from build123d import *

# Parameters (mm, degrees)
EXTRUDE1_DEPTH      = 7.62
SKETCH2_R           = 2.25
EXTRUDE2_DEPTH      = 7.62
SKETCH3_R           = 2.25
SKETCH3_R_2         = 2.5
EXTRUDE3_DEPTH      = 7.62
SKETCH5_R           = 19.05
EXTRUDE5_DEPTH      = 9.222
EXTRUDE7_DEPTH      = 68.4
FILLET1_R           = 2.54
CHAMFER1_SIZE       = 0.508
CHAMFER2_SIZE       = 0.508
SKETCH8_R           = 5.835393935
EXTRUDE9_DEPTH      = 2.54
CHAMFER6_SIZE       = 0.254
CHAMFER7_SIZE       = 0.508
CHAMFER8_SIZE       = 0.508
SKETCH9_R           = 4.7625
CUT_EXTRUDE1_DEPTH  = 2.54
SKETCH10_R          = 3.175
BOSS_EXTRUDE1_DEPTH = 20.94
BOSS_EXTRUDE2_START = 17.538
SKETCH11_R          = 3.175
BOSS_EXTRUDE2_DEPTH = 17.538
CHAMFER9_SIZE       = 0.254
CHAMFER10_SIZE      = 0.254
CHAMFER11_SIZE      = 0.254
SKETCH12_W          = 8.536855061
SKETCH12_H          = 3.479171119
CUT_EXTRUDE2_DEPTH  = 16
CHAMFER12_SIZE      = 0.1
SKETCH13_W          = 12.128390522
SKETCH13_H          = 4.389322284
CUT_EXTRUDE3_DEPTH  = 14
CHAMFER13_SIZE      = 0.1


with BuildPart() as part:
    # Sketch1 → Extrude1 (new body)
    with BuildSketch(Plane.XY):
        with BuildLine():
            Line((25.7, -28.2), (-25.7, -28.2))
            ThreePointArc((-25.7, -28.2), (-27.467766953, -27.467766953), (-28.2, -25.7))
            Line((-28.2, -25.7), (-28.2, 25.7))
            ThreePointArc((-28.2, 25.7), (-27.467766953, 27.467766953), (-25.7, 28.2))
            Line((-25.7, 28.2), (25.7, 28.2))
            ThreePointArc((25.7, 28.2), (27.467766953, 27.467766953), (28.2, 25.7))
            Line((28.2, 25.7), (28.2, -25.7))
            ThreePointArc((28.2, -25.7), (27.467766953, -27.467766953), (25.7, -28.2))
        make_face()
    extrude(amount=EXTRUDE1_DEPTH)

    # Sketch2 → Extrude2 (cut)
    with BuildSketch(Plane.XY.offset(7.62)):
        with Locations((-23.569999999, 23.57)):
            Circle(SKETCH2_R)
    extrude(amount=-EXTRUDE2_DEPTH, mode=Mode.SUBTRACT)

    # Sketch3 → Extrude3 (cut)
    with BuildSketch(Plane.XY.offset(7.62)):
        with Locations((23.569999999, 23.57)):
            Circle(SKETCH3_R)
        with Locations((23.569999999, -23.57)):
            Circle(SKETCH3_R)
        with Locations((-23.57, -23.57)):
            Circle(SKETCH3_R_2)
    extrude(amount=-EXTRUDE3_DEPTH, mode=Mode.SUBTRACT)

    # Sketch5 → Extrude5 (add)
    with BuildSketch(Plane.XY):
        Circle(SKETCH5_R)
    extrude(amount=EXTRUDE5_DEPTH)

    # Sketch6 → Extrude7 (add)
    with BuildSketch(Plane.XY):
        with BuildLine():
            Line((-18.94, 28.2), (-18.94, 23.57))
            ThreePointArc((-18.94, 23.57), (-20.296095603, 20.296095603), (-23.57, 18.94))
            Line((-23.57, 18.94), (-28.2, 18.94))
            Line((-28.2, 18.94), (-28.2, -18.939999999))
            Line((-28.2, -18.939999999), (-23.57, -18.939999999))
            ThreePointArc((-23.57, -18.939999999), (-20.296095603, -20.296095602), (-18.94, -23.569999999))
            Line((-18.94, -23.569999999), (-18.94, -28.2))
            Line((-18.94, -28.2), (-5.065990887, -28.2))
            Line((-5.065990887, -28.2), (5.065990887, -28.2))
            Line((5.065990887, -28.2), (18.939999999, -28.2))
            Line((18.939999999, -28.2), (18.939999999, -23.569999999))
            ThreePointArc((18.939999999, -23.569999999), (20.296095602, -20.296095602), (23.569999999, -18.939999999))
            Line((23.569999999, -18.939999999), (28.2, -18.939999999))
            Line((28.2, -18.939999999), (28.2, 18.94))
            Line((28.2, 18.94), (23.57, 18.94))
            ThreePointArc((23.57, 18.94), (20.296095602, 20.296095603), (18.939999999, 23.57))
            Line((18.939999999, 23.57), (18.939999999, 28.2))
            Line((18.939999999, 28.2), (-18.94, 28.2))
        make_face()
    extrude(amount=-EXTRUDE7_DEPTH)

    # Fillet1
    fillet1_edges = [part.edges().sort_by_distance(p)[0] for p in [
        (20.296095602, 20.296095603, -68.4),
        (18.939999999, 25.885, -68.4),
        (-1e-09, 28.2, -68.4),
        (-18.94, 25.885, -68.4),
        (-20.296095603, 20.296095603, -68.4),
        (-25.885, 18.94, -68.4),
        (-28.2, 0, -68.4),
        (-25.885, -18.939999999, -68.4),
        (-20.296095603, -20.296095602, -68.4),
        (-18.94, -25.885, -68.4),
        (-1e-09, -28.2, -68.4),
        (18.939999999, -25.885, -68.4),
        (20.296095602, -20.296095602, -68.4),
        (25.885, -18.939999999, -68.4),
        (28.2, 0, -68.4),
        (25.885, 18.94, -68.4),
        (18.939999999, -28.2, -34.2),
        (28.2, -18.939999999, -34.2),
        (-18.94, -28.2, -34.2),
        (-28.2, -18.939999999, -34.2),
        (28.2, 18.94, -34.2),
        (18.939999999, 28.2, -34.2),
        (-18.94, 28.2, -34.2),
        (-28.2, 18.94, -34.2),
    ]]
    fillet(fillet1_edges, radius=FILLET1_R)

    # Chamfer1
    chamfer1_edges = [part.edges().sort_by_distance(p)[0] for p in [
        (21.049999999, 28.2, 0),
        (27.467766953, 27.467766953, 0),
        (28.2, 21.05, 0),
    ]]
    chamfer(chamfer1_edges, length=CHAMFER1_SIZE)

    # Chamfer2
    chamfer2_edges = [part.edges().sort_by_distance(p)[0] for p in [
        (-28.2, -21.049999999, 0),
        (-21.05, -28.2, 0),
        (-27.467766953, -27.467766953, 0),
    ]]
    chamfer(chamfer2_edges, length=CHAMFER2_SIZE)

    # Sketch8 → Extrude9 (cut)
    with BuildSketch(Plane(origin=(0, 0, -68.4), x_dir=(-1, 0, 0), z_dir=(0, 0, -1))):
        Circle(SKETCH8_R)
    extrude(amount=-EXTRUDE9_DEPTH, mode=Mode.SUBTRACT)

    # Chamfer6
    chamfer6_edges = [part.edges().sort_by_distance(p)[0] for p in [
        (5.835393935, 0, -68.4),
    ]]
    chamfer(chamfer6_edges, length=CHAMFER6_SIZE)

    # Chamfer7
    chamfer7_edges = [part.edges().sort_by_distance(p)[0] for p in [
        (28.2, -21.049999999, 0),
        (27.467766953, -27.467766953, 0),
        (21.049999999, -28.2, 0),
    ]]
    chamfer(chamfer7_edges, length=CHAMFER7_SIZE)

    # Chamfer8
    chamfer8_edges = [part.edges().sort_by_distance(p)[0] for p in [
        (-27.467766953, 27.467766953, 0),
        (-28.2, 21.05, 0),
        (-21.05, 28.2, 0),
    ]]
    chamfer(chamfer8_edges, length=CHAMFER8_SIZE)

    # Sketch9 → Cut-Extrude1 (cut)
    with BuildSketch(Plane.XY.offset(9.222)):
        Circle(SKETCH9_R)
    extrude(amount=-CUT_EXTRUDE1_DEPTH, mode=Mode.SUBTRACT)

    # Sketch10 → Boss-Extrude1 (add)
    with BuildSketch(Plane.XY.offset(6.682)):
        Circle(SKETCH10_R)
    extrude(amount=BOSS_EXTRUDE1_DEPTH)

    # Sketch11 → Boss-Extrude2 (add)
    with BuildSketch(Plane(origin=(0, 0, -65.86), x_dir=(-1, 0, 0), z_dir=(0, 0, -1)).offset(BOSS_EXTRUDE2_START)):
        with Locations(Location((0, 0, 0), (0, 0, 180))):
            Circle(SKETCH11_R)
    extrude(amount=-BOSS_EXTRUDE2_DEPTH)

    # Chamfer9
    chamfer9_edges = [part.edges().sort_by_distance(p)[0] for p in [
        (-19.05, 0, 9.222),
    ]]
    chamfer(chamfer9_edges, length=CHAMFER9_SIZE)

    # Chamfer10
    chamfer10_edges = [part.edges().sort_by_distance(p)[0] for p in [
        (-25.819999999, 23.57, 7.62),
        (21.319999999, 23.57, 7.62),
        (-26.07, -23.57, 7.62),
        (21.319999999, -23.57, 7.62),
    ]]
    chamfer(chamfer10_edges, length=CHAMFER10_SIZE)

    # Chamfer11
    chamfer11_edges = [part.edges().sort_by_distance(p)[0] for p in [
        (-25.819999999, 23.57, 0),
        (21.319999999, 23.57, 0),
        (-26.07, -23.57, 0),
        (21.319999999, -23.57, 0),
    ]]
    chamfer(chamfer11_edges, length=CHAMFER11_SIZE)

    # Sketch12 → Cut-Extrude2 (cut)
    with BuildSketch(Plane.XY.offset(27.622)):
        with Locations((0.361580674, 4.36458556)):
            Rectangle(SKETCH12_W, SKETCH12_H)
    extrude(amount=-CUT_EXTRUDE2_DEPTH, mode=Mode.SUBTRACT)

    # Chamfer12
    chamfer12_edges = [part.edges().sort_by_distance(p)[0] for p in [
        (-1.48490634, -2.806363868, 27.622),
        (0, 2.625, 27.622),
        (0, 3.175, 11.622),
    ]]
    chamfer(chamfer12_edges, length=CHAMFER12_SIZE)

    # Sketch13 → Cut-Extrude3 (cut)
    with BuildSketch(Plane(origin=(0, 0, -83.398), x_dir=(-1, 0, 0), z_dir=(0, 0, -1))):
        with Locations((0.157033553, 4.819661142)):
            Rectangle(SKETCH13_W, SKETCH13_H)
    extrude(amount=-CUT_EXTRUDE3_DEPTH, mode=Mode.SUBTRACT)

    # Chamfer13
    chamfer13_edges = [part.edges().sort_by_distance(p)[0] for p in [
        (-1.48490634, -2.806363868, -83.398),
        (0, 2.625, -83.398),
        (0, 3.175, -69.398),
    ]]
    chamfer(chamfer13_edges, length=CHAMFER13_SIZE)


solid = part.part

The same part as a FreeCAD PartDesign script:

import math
import FreeCAD as App
import Part
import Sketcher

V = App.Vector
Q = App.Units.Quantity


def edges_at(feature, points):
    """Names of the edges that pass closest to the given points."""
    edges = feature.Shape.Edges
    near = lambda p: min(range(len(edges)), key=lambda i: edges[i].distToShape(Part.Vertex(*p))[0])
    return sorted({f"Edge{near(p) + 1}" for p in points})


def add_polygon(sketch, points):
    """Adds a closed chain of lines whose ends are joined by coincident constraints."""
    first, n = sketch.GeometryCount, len(points)
    for a, b in zip(points, points[1:] + points[:1]):
        sketch.addGeometry(Part.LineSegment(App.Vector(*a, 0), App.Vector(*b, 0)), False)
    for i in range(n):
        sketch.addConstraint(Sketcher.Constraint("Coincident", first + i, 2, first + (i + 1) % n, 1))

doc = App.newDocument("Part")
params = doc.addObject("Spreadsheet::Sheet", "Params")
for row, (alias, value) in enumerate([
    ("sketch1_radius", "2.5 mm"),
    ("sketch1_width", "51.4 mm"),
    ("pad1_length", "7.62 mm"),
    ("sketch2_diameter", "4.5 mm"),
    ("pocket1_length", "7.62 mm"),
    ("sketch3_diameter", "5 mm"),
    ("sketch3_diameter2", "4.5 mm"),
    ("pocket2_length", "7.62 mm"),
    ("sketch4_diameter", "38.1 mm"),
    ("pad2_length", "9.222 mm"),
    ("sketch5_radius", "4.63 mm"),
    ("sketch5_width", "4.63 mm"),
    ("sketch5_width2", "37.88 mm"),
    ("pad3_length", "68.4 mm"),
    ("fillet_radius", "2.54 mm"),
    ("chamfer_size", "0.508 mm"),
    ("chamfer2_size", "0.508 mm"),
    ("pocket3_length", "2.54 mm"),
    ("chamfer3_size", "0.254 mm"),
    ("chamfer4_size", "0.508 mm"),
    ("chamfer5_size", "0.508 mm"),
    ("pocket4_length", "2.54 mm"),
    ("sketch8_diameter", "6.35 mm"),
    ("pad4_length", "20.94 mm"),
    ("sketch9_diameter", "6.35 mm"),
    ("pad5_length", "17.538 mm"),
    ("chamfer6_size", "0.254 mm"),
    ("chamfer7_size", "0.254 mm"),
    ("chamfer8_size", "0.254 mm"),
    ("pocket5_length", "16 mm"),
    ("chamfer9_size", "0.1 mm"),
    ("pocket6_length", "14 mm"),
    ("chamfer10_size", "0.1 mm"),
], start=1):
    params.set(f"A{row}", alias)
    params.set(f"B{row}", "=" + value)
    params.setAlias(f"B{row}", alias)

body = doc.addObject("PartDesign::Body", "Body")

# Sketch on XY plane
sketch1 = body.newObject("Sketcher::SketchObject", "Sketch")
sketch1.AttachmentSupport = (doc.getObject("XY_Plane"), [""])
sketch1.MapMode = "FlatFace"
sketch1.addGeometry(Part.LineSegment(V(-25.7, -28.2, 0), V(25.7, -28.2, 0)), False)
sketch1.addGeometry(Part.ArcOfCircle(Part.Circle(V(25.7, -25.7, 0), V(0, 0, 1), 2.5), math.radians(-90), math.radians(0)), False)
sketch1.addGeometry(Part.LineSegment(V(28.2, -25.7, 0), V(28.2, 25.7, 0)), False)
sketch1.addGeometry(Part.ArcOfCircle(Part.Circle(V(25.7, 25.7, 0), V(0, 0, 1), 2.5), math.radians(0), math.radians(90)), False)
sketch1.addGeometry(Part.LineSegment(V(25.7, 28.2, 0), V(-25.7, 28.2, 0)), False)
sketch1.addGeometry(Part.ArcOfCircle(Part.Circle(V(-25.7, 25.7, 0), V(0, 0, 1), 2.5), math.radians(90), math.radians(180)), False)
sketch1.addGeometry(Part.LineSegment(V(-28.2, 25.7, 0), V(-28.2, -25.7, 0)), False)
sketch1.addGeometry(Part.ArcOfCircle(Part.Circle(V(-25.7, -25.7, 0), V(0, 0, 1), 2.5), math.radians(180), math.radians(270)), False)
sketch1.addConstraint(Sketcher.Constraint("Tangent", 0, 2, 1, 1))
sketch1.addConstraint(Sketcher.Constraint("Tangent", 1, 2, 2, 1))
sketch1.addConstraint(Sketcher.Constraint("Tangent", 2, 2, 3, 1))
sketch1.addConstraint(Sketcher.Constraint("Tangent", 3, 2, 4, 1))
sketch1.addConstraint(Sketcher.Constraint("Tangent", 4, 2, 5, 1))
sketch1.addConstraint(Sketcher.Constraint("Tangent", 5, 2, 6, 1))
sketch1.addConstraint(Sketcher.Constraint("Tangent", 6, 2, 7, 1))
sketch1.addConstraint(Sketcher.Constraint("Tangent", 7, 2, 0, 1))
sketch1.addConstraint(Sketcher.Constraint("Horizontal", 0))
sketch1.addConstraint(Sketcher.Constraint("Vertical", 2))
sketch1.addConstraint(Sketcher.Constraint("Horizontal", 4))
sketch1.addConstraint(Sketcher.Constraint("Vertical", 6))
sketch1.addConstraint(Sketcher.Constraint("Equal", 1, 3))
sketch1.addConstraint(Sketcher.Constraint("Equal", 3, 5))
sketch1.addConstraint(Sketcher.Constraint("Equal", 5, 7))
sketch1.addConstraint(Sketcher.Constraint("Symmetric", 1, 3, 5, 3, -1, 1))
sketch1.addConstraint(Sketcher.Constraint("Equal", 4, 2))
sketch1.addConstraint(Sketcher.Constraint("Radius", 1, Q("2.5 mm")))
sketch1.addConstraint(Sketcher.Constraint("DistanceX", 0, 1, 0, 2, Q("51.4 mm")))
sketch1.setExpression("Constraints[17]", "Params.sketch1_radius")
sketch1.setExpression("Constraints[18]", "Params.sketch1_width")
pad1 = body.newObject("PartDesign::Pad", "Pad")
pad1.Profile = sketch1
pad1.setExpression("Length", "Params.pad1_length")

# Sketch on XY plane
sketch2 = body.newObject("Sketcher::SketchObject", "Sketch001")
sketch2.AttachmentSupport = (doc.getObject("XY_Plane"), [""])
sketch2.MapMode = "FlatFace"
sketch2.AttachmentOffset = App.Placement(V(0, 0, 7.62), App.Rotation())
sketch2.addGeometry(Part.Circle(V(-23.6, 23.6, 0), V(0, 0, 1), 2.2), False)
sketch2.addConstraint(Sketcher.Constraint("Diameter", 0, Q("4.5 mm")))
sketch2.addConstraint(Sketcher.Constraint("DistanceX", 0, 3, -1, 1, Q("23.57 mm")))
sketch2.addConstraint(Sketcher.Constraint("DistanceY", -1, 1, 0, 3, Q("23.57 mm")))
sketch2.setExpression("Constraints[0]", "Params.sketch2_diameter")
pocket1 = body.newObject("PartDesign::Pocket", "Pocket")
pocket1.Profile = sketch2
pocket1.setExpression("Length", "Params.pocket1_length")

# Sketch on XY plane
sketch3 = body.newObject("Sketcher::SketchObject", "Sketch002")
sketch3.AttachmentSupport = (doc.getObject("XY_Plane"), [""])
sketch3.MapMode = "FlatFace"
sketch3.AttachmentOffset = App.Placement(V(0, 0, 7.62), App.Rotation())
sketch3.addGeometry(Part.Circle(V(23.6, 23.6, 0), V(0, 0, 1), 2.2), False)
sketch3.addGeometry(Part.Circle(V(23.6, -23.6, 0), V(0, 0, 1), 2.2), False)
sketch3.addGeometry(Part.Circle(V(-23.6, -23.6, 0), V(0, 0, 1), 2.5), False)
sketch3.addConstraint(Sketcher.Constraint("Equal", 0, 1))
sketch3.addConstraint(Sketcher.Constraint("Symmetric", 0, 3, 2, 3, -1, 1))
sketch3.addConstraint(Sketcher.Constraint("Symmetric", 1, 3, 2, 3, -2))
sketch3.addConstraint(Sketcher.Constraint("Diameter", 2, Q("5 mm")))
sketch3.addConstraint(Sketcher.Constraint("Diameter", 0, Q("4.5 mm")))
sketch3.addConstraint(Sketcher.Constraint("DistanceX", -1, 1, 0, 3, Q("23.57 mm")))
sketch3.addConstraint(Sketcher.Constraint("DistanceY", -1, 1, 0, 3, Q("23.57 mm")))
sketch3.setExpression("Constraints[3]", "Params.sketch3_diameter")
sketch3.setExpression("Constraints[4]", "Params.sketch3_diameter2")
pocket2 = body.newObject("PartDesign::Pocket", "Pocket001")
pocket2.Profile = sketch3
pocket2.setExpression("Length", "Params.pocket2_length")

# Sketch on XY plane
sketch4 = body.newObject("Sketcher::SketchObject", "Sketch003")
sketch4.AttachmentSupport = (doc.getObject("XY_Plane"), [""])
sketch4.MapMode = "FlatFace"
sketch4.addGeometry(Part.Circle(V(0, 0, 0), V(0, 0, 1), 19), False)
sketch4.addConstraint(Sketcher.Constraint("Coincident", 0, 3, -1, 1))
sketch4.addConstraint(Sketcher.Constraint("Diameter", 0, Q("38.1 mm")))
sketch4.setExpression("Constraints[1]", "Params.sketch4_diameter")
pad2 = body.newObject("PartDesign::Pad", "Pad001")
pad2.Profile = sketch4
pad2.setExpression("Length", "Params.pad2_length")

# Sketch on XY plane
sketch5 = body.newObject("Sketcher::SketchObject", "Sketch004")
sketch5.AttachmentSupport = (doc.getObject("XY_Plane"), [""])
sketch5.MapMode = "FlatFace"
sketch5.addGeometry(Part.LineSegment(V(-18.9, 28.2, 0), V(-18.9, 23.6, 0)), False)
sketch5.addGeometry(Part.ArcOfCircle(Part.Circle(V(-23.6, 23.6, 0), V(0, 0, 1), 4.6), math.radians(-90), math.radians(0)), False)
sketch5.addGeometry(Part.LineSegment(V(-23.6, 18.9, 0), V(-28.2, 18.9, 0)), False)
sketch5.addGeometry(Part.LineSegment(V(-28.2, 18.9, 0), V(-28.2, -18.9, 0)), False)
sketch5.addGeometry(Part.LineSegment(V(-28.2, -18.9, 0), V(-23.6, -18.9, 0)), False)
sketch5.addGeometry(Part.ArcOfCircle(Part.Circle(V(-23.6, -23.6, 0), V(0, 0, 1), 4.6), math.radians(0), math.radians(90)), False)
sketch5.addGeometry(Part.LineSegment(V(-18.9, -23.6, 0), V(-18.9, -28.2, 0)), False)
sketch5.addGeometry(Part.LineSegment(V(-18.9, -28.2, 0), V(18.9, -28.2, 0)), False)
sketch5.addGeometry(Part.LineSegment(V(18.9, -28.2, 0), V(18.9, -23.6, 0)), False)
sketch5.addGeometry(Part.ArcOfCircle(Part.Circle(V(23.6, -23.6, 0), V(0, 0, 1), 4.6), math.radians(90), math.radians(180)), False)
sketch5.addGeometry(Part.LineSegment(V(23.6, -18.9, 0), V(28.2, -18.9, 0)), False)
sketch5.addGeometry(Part.LineSegment(V(28.2, -18.9, 0), V(28.2, 18.9, 0)), False)
sketch5.addGeometry(Part.LineSegment(V(28.2, 18.9, 0), V(23.6, 18.9, 0)), False)
sketch5.addGeometry(Part.ArcOfCircle(Part.Circle(V(23.6, 23.6, 0), V(0, 0, 1), 4.6), math.radians(180), math.radians(270)), False)
sketch5.addGeometry(Part.LineSegment(V(18.9, 23.6, 0), V(18.9, 28.2, 0)), False)
sketch5.addGeometry(Part.LineSegment(V(18.9, 28.2, 0), V(-18.9, 28.2, 0)), False)
sketch5.addConstraint(Sketcher.Constraint("Tangent", 0, 2, 1, 2))
sketch5.addConstraint(Sketcher.Constraint("Tangent", 1, 1, 2, 1))
sketch5.addConstraint(Sketcher.Constraint("Coincident", 2, 2, 3, 1))
sketch5.addConstraint(Sketcher.Constraint("Coincident", 3, 2, 4, 1))
sketch5.addConstraint(Sketcher.Constraint("Tangent", 4, 2, 5, 2))
sketch5.addConstraint(Sketcher.Constraint("Tangent", 5, 1, 6, 1))
sketch5.addConstraint(Sketcher.Constraint("Coincident", 6, 2, 7, 1))
sketch5.addConstraint(Sketcher.Constraint("Coincident", 7, 2, 8, 1))
sketch5.addConstraint(Sketcher.Constraint("Tangent", 8, 2, 9, 2))
sketch5.addConstraint(Sketcher.Constraint("Tangent", 9, 1, 10, 1))
sketch5.addConstraint(Sketcher.Constraint("Coincident", 10, 2, 11, 1))
sketch5.addConstraint(Sketcher.Constraint("Coincident", 11, 2, 12, 1))
sketch5.addConstraint(Sketcher.Constraint("Tangent", 12, 2, 13, 2))
sketch5.addConstraint(Sketcher.Constraint("Tangent", 13, 1, 14, 1))
sketch5.addConstraint(Sketcher.Constraint("Coincident", 14, 2, 15, 1))
sketch5.addConstraint(Sketcher.Constraint("Coincident", 15, 2, 0, 1))
sketch5.addConstraint(Sketcher.Constraint("Vertical", 0))
sketch5.addConstraint(Sketcher.Constraint("Horizontal", 2))
sketch5.addConstraint(Sketcher.Constraint("Vertical", 3))
sketch5.addConstraint(Sketcher.Constraint("Horizontal", 4))
sketch5.addConstraint(Sketcher.Constraint("Vertical", 6))
sketch5.addConstraint(Sketcher.Constraint("Horizontal", 7))
sketch5.addConstraint(Sketcher.Constraint("Vertical", 8))
sketch5.addConstraint(Sketcher.Constraint("Horizontal", 10))
sketch5.addConstraint(Sketcher.Constraint("Vertical", 11))
sketch5.addConstraint(Sketcher.Constraint("Horizontal", 12))
sketch5.addConstraint(Sketcher.Constraint("Vertical", 14))
sketch5.addConstraint(Sketcher.Constraint("Horizontal", 15))
sketch5.addConstraint(Sketcher.Constraint("Equal", 1, 5))
sketch5.addConstraint(Sketcher.Constraint("Equal", 5, 9))
sketch5.addConstraint(Sketcher.Constraint("Equal", 9, 13))
sketch5.addConstraint(Sketcher.Constraint("Symmetric", 1, 3, 9, 3, -1, 1))
sketch5.addConstraint(Sketcher.Constraint("Symmetric", 5, 3, 13, 3, -1, 1))
sketch5.addConstraint(Sketcher.Constraint("Symmetric", 5, 3, 9, 3, -2))
sketch5.addConstraint(Sketcher.Constraint("Equal", 4, 10))
sketch5.addConstraint(Sketcher.Constraint("Equal", 12, 0))
sketch5.addConstraint(Sketcher.Constraint("Equal", 15, 3))
sketch5.addConstraint(Sketcher.Constraint("Equal", 0, 6))
sketch5.addConstraint(Sketcher.Constraint("Radius", 1, Q("4.63 mm")))
sketch5.addConstraint(Sketcher.Constraint("DistanceX", 2, 2, 2, 1, Q("4.63 mm")))
sketch5.addConstraint(Sketcher.Constraint("DistanceX", 7, 1, 7, 2, Q("37.88 mm")))
sketch5.setExpression("Constraints[38]", "Params.sketch5_radius")
sketch5.setExpression("Constraints[39]", "Params.sketch5_width")
sketch5.setExpression("Constraints[40]", "Params.sketch5_width2")
pad3 = body.newObject("PartDesign::Pad", "Pad002")
pad3.Profile = sketch5
pad3.setExpression("Length", "Params.pad3_length")
pad3.Reversed = True
doc.recompute()

fillet = body.newObject("PartDesign::Fillet", "Fillet")
fillet.Base = (pad3, edges_at(pad3, [
    (20.296, 20.296, -68.4),
    (18.94, 25.885, -68.4),
    (0, 28.2, -68.4),
    (-18.94, 25.885, -68.4),
    (-20.296, 20.296, -68.4),
    (-25.885, 18.94, -68.4),
    (-28.2, 0, -68.4),
    (-25.885, -18.94, -68.4),
    (-20.296, -20.296, -68.4),
    (-18.94, -25.885, -68.4),
    (0, -28.2, -68.4),
    (18.94, -25.885, -68.4),
    (20.296, -20.296, -68.4),
    (25.885, -18.94, -68.4),
    (28.2, 0, -68.4),
    (25.885, 18.94, -68.4),
    (18.94, -28.2, -34.2),
    (28.2, -18.94, -34.2),
    (-18.94, -28.2, -34.2),
    (-28.2, -18.94, -34.2),
    (28.2, 18.94, -34.2),
    (18.94, 28.2, -34.2),
    (-18.94, 28.2, -34.2),
    (-28.2, 18.94, -34.2),
]))
fillet.setExpression("Radius", "Params.fillet_radius")
doc.recompute()

chamfer = body.newObject("PartDesign::Chamfer", "Chamfer")
chamfer.Base = (fillet, edges_at(fillet, [(21.05, 28.2, 0), (27.468, 27.468, 0), (28.2, 21.05, 0)]))
chamfer.setExpression("Size", "Params.chamfer_size")
doc.recompute()

chamfer2 = body.newObject("PartDesign::Chamfer", "Chamfer001")
chamfer2.Base = (chamfer, edges_at(chamfer, [(-28.2, -21.05, 0), (-21.05, -28.2, 0), (-27.468, -27.468, 0)]))
chamfer2.setExpression("Size", "Params.chamfer2_size")

# Sketch on XY plane
sketch6 = body.newObject("Sketcher::SketchObject", "Sketch005")
sketch6.AttachmentSupport = (doc.getObject("XY_Plane"), [""])
sketch6.MapMode = "FlatFace"
sketch6.AttachmentOffset = App.Placement(V(0, 0, -68.4), App.Rotation())
sketch6.addGeometry(Part.Circle(V(0, 0, 0), V(0, 0, 1), 6), False)
sketch6.addConstraint(Sketcher.Constraint("Coincident", 0, 3, -1, 1))
sketch6.addConstraint(Sketcher.Constraint("Diameter", 0, Q("11.670788 mm")))
pocket3 = body.newObject("PartDesign::Pocket", "Pocket002")
pocket3.Profile = sketch6
pocket3.setExpression("Length", "Params.pocket3_length")
pocket3.Reversed = True
doc.recompute()

chamfer3 = body.newObject("PartDesign::Chamfer", "Chamfer002")
chamfer3.Base = (pocket3, edges_at(pocket3, [(5.835, 0, -68.4)]))
chamfer3.setExpression("Size", "Params.chamfer3_size")
doc.recompute()

chamfer4 = body.newObject("PartDesign::Chamfer", "Chamfer003")
chamfer4.Base = (chamfer3, edges_at(chamfer3, [(28.2, -21.05, 0), (27.468, -27.468, 0), (21.05, -28.2, 0)]))
chamfer4.setExpression("Size", "Params.chamfer4_size")
doc.recompute()

chamfer5 = body.newObject("PartDesign::Chamfer", "Chamfer004")
chamfer5.Base = (chamfer4, edges_at(chamfer4, [(-27.468, 27.468, 0), (-28.2, 21.05, 0), (-21.05, 28.2, 0)]))
chamfer5.setExpression("Size", "Params.chamfer5_size")

# Sketch on XY plane
sketch7 = body.newObject("Sketcher::SketchObject", "Sketch006")
sketch7.AttachmentSupport = (doc.getObject("XY_Plane"), [""])
sketch7.MapMode = "FlatFace"
sketch7.AttachmentOffset = App.Placement(V(0, 0, 9.222), App.Rotation())
sketch7.addGeometry(Part.Circle(V(0, 0, 0), V(0, 0, 1), 4.8), False)
sketch7.addConstraint(Sketcher.Constraint("Coincident", 0, 3, -1, 1))
sketch7.addConstraint(Sketcher.Constraint("Diameter", 0, Q("9.525 mm")))
pocket4 = body.newObject("PartDesign::Pocket", "Pocket003")
pocket4.Profile = sketch7
pocket4.setExpression("Length", "Params.pocket4_length")

# Sketch on XY plane
sketch8 = body.newObject("Sketcher::SketchObject", "Sketch007")
sketch8.AttachmentSupport = (doc.getObject("XY_Plane"), [""])
sketch8.MapMode = "FlatFace"
sketch8.AttachmentOffset = App.Placement(V(0, 0, 6.682), App.Rotation())
sketch8.addGeometry(Part.Circle(V(0, 0, 0), V(0, 0, 1), 3.2), False)
sketch8.addConstraint(Sketcher.Constraint("Coincident", 0, 3, -1, 1))
sketch8.addConstraint(Sketcher.Constraint("Diameter", 0, Q("6.35 mm")))
sketch8.setExpression("Constraints[1]", "Params.sketch8_diameter")
pad4 = body.newObject("PartDesign::Pad", "Pad003")
pad4.Profile = sketch8
pad4.setExpression("Length", "Params.pad4_length")

# Sketch on XY plane
sketch9 = body.newObject("Sketcher::SketchObject", "Sketch008")
sketch9.AttachmentSupport = (doc.getObject("XY_Plane"), [""])
sketch9.MapMode = "FlatFace"
sketch9.AttachmentOffset = App.Placement(V(0, 0, -83.398), App.Rotation())
sketch9.addGeometry(Part.Circle(V(0, 0, 0), V(0, 0, 1), 3.2), False)
sketch9.addConstraint(Sketcher.Constraint("Coincident", 0, 3, -1, 1))
sketch9.addConstraint(Sketcher.Constraint("Diameter", 0, Q("6.35 mm")))
sketch9.setExpression("Constraints[1]", "Params.sketch9_diameter")
pad5 = body.newObject("PartDesign::Pad", "Pad004")
pad5.Profile = sketch9
pad5.setExpression("Length", "Params.pad5_length")
doc.recompute()

chamfer6 = body.newObject("PartDesign::Chamfer", "Chamfer005")
chamfer6.Base = (pad5, edges_at(pad5, [(-19.05, 0, 9.222)]))
chamfer6.setExpression("Size", "Params.chamfer6_size")
doc.recompute()

chamfer7 = body.newObject("PartDesign::Chamfer", "Chamfer006")
chamfer7.Base = (chamfer6, edges_at(chamfer6, [
    (-25.82, 23.57, 7.62),
    (21.32, 23.57, 7.62),
    (-26.07, -23.57, 7.62),
    (21.32, -23.57, 7.62),
]))
chamfer7.setExpression("Size", "Params.chamfer7_size")
doc.recompute()

chamfer8 = body.newObject("PartDesign::Chamfer", "Chamfer007")
chamfer8.Base = (chamfer7, edges_at(chamfer7, [
    (-25.82, 23.57, 0),
    (21.32, 23.57, 0),
    (-26.07, -23.57, 0),
    (21.32, -23.57, 0),
]))
chamfer8.setExpression("Size", "Params.chamfer8_size")

# Sketch on XY plane
sketch10 = body.newObject("Sketcher::SketchObject", "Sketch009")
sketch10.AttachmentSupport = (doc.getObject("XY_Plane"), [""])
sketch10.MapMode = "FlatFace"
sketch10.AttachmentOffset = App.Placement(V(0, 0, 27.622), App.Rotation())
add_polygon(sketch10, [(-3.9, 6.1), (-3.9, 2.6), (4.6, 2.6), (4.6, 6.1)])  # lines 0-3
sketch10.addConstraint(Sketcher.Constraint("Vertical", 0))
sketch10.addConstraint(Sketcher.Constraint("Horizontal", 1))
sketch10.addConstraint(Sketcher.Constraint("Vertical", 2))
sketch10.addConstraint(Sketcher.Constraint("Horizontal", 3))
sketch10.addConstraint(Sketcher.Constraint("DistanceY", -1, 1, 0, 2, Q("2.625 mm")))
sketch10.addConstraint(Sketcher.Constraint("DistanceY", 0, 2, 0, 1, Q("3.479171 mm")))
sketch10.addConstraint(Sketcher.Constraint("DistanceX", 1, 1, 1, 2, Q("8.536855 mm")))
sketch10.addConstraint(Sketcher.Constraint("DistanceX", -1, 1, 1, 2, Q("4.630008 mm")))
pocket5 = body.newObject("PartDesign::Pocket", "Pocket004")
pocket5.Profile = sketch10
pocket5.setExpression("Length", "Params.pocket5_length")
doc.recompute()

chamfer9 = body.newObject("PartDesign::Chamfer", "Chamfer008")
chamfer9.Base = (pocket5, edges_at(pocket5, [(-1.485, -2.806, 27.622), (0, 2.625, 27.622), (0, 3.175, 11.622)]))
chamfer9.setExpression("Size", "Params.chamfer9_size")

# Sketch on XY plane
sketch11 = body.newObject("Sketcher::SketchObject", "Sketch010")
sketch11.AttachmentSupport = (doc.getObject("XY_Plane"), [""])
sketch11.MapMode = "FlatFace"
sketch11.AttachmentOffset = App.Placement(V(0, 0, -83.398), App.Rotation())
add_polygon(sketch11, [(5.9, 7), (5.9, 2.6), (-6.2, 2.6), (-6.2, 7)])  # lines 0-3
sketch11.addConstraint(Sketcher.Constraint("Vertical", 0))
sketch11.addConstraint(Sketcher.Constraint("Horizontal", 1))
sketch11.addConstraint(Sketcher.Constraint("Vertical", 2))
sketch11.addConstraint(Sketcher.Constraint("Horizontal", 3))
sketch11.addConstraint(Sketcher.Constraint("DistanceY", -1, 1, 0, 2, Q("2.625 mm")))
sketch11.addConstraint(Sketcher.Constraint("DistanceX", 1, 2, 1, 1, Q("12.128391 mm")))
sketch11.addConstraint(Sketcher.Constraint("DistanceY", 0, 2, 0, 1, Q("4.389322 mm")))
sketch11.addConstraint(Sketcher.Constraint("DistanceX", -1, 1, 0, 2, Q("5.907162 mm")))
pocket6 = body.newObject("PartDesign::Pocket", "Pocket005")
pocket6.Profile = sketch11
pocket6.setExpression("Length", "Params.pocket6_length")
pocket6.Reversed = True
doc.recompute()

chamfer10 = body.newObject("PartDesign::Chamfer", "Chamfer009")
chamfer10.Base = (pocket6, edges_at(pocket6, [(-1.485, -2.806, -83.398), (0, 2.625, -83.398), (0, 3.175, -69.398)]))
chamfer10.setExpression("Size", "Params.chamfer10_size")

doc.recompute()
